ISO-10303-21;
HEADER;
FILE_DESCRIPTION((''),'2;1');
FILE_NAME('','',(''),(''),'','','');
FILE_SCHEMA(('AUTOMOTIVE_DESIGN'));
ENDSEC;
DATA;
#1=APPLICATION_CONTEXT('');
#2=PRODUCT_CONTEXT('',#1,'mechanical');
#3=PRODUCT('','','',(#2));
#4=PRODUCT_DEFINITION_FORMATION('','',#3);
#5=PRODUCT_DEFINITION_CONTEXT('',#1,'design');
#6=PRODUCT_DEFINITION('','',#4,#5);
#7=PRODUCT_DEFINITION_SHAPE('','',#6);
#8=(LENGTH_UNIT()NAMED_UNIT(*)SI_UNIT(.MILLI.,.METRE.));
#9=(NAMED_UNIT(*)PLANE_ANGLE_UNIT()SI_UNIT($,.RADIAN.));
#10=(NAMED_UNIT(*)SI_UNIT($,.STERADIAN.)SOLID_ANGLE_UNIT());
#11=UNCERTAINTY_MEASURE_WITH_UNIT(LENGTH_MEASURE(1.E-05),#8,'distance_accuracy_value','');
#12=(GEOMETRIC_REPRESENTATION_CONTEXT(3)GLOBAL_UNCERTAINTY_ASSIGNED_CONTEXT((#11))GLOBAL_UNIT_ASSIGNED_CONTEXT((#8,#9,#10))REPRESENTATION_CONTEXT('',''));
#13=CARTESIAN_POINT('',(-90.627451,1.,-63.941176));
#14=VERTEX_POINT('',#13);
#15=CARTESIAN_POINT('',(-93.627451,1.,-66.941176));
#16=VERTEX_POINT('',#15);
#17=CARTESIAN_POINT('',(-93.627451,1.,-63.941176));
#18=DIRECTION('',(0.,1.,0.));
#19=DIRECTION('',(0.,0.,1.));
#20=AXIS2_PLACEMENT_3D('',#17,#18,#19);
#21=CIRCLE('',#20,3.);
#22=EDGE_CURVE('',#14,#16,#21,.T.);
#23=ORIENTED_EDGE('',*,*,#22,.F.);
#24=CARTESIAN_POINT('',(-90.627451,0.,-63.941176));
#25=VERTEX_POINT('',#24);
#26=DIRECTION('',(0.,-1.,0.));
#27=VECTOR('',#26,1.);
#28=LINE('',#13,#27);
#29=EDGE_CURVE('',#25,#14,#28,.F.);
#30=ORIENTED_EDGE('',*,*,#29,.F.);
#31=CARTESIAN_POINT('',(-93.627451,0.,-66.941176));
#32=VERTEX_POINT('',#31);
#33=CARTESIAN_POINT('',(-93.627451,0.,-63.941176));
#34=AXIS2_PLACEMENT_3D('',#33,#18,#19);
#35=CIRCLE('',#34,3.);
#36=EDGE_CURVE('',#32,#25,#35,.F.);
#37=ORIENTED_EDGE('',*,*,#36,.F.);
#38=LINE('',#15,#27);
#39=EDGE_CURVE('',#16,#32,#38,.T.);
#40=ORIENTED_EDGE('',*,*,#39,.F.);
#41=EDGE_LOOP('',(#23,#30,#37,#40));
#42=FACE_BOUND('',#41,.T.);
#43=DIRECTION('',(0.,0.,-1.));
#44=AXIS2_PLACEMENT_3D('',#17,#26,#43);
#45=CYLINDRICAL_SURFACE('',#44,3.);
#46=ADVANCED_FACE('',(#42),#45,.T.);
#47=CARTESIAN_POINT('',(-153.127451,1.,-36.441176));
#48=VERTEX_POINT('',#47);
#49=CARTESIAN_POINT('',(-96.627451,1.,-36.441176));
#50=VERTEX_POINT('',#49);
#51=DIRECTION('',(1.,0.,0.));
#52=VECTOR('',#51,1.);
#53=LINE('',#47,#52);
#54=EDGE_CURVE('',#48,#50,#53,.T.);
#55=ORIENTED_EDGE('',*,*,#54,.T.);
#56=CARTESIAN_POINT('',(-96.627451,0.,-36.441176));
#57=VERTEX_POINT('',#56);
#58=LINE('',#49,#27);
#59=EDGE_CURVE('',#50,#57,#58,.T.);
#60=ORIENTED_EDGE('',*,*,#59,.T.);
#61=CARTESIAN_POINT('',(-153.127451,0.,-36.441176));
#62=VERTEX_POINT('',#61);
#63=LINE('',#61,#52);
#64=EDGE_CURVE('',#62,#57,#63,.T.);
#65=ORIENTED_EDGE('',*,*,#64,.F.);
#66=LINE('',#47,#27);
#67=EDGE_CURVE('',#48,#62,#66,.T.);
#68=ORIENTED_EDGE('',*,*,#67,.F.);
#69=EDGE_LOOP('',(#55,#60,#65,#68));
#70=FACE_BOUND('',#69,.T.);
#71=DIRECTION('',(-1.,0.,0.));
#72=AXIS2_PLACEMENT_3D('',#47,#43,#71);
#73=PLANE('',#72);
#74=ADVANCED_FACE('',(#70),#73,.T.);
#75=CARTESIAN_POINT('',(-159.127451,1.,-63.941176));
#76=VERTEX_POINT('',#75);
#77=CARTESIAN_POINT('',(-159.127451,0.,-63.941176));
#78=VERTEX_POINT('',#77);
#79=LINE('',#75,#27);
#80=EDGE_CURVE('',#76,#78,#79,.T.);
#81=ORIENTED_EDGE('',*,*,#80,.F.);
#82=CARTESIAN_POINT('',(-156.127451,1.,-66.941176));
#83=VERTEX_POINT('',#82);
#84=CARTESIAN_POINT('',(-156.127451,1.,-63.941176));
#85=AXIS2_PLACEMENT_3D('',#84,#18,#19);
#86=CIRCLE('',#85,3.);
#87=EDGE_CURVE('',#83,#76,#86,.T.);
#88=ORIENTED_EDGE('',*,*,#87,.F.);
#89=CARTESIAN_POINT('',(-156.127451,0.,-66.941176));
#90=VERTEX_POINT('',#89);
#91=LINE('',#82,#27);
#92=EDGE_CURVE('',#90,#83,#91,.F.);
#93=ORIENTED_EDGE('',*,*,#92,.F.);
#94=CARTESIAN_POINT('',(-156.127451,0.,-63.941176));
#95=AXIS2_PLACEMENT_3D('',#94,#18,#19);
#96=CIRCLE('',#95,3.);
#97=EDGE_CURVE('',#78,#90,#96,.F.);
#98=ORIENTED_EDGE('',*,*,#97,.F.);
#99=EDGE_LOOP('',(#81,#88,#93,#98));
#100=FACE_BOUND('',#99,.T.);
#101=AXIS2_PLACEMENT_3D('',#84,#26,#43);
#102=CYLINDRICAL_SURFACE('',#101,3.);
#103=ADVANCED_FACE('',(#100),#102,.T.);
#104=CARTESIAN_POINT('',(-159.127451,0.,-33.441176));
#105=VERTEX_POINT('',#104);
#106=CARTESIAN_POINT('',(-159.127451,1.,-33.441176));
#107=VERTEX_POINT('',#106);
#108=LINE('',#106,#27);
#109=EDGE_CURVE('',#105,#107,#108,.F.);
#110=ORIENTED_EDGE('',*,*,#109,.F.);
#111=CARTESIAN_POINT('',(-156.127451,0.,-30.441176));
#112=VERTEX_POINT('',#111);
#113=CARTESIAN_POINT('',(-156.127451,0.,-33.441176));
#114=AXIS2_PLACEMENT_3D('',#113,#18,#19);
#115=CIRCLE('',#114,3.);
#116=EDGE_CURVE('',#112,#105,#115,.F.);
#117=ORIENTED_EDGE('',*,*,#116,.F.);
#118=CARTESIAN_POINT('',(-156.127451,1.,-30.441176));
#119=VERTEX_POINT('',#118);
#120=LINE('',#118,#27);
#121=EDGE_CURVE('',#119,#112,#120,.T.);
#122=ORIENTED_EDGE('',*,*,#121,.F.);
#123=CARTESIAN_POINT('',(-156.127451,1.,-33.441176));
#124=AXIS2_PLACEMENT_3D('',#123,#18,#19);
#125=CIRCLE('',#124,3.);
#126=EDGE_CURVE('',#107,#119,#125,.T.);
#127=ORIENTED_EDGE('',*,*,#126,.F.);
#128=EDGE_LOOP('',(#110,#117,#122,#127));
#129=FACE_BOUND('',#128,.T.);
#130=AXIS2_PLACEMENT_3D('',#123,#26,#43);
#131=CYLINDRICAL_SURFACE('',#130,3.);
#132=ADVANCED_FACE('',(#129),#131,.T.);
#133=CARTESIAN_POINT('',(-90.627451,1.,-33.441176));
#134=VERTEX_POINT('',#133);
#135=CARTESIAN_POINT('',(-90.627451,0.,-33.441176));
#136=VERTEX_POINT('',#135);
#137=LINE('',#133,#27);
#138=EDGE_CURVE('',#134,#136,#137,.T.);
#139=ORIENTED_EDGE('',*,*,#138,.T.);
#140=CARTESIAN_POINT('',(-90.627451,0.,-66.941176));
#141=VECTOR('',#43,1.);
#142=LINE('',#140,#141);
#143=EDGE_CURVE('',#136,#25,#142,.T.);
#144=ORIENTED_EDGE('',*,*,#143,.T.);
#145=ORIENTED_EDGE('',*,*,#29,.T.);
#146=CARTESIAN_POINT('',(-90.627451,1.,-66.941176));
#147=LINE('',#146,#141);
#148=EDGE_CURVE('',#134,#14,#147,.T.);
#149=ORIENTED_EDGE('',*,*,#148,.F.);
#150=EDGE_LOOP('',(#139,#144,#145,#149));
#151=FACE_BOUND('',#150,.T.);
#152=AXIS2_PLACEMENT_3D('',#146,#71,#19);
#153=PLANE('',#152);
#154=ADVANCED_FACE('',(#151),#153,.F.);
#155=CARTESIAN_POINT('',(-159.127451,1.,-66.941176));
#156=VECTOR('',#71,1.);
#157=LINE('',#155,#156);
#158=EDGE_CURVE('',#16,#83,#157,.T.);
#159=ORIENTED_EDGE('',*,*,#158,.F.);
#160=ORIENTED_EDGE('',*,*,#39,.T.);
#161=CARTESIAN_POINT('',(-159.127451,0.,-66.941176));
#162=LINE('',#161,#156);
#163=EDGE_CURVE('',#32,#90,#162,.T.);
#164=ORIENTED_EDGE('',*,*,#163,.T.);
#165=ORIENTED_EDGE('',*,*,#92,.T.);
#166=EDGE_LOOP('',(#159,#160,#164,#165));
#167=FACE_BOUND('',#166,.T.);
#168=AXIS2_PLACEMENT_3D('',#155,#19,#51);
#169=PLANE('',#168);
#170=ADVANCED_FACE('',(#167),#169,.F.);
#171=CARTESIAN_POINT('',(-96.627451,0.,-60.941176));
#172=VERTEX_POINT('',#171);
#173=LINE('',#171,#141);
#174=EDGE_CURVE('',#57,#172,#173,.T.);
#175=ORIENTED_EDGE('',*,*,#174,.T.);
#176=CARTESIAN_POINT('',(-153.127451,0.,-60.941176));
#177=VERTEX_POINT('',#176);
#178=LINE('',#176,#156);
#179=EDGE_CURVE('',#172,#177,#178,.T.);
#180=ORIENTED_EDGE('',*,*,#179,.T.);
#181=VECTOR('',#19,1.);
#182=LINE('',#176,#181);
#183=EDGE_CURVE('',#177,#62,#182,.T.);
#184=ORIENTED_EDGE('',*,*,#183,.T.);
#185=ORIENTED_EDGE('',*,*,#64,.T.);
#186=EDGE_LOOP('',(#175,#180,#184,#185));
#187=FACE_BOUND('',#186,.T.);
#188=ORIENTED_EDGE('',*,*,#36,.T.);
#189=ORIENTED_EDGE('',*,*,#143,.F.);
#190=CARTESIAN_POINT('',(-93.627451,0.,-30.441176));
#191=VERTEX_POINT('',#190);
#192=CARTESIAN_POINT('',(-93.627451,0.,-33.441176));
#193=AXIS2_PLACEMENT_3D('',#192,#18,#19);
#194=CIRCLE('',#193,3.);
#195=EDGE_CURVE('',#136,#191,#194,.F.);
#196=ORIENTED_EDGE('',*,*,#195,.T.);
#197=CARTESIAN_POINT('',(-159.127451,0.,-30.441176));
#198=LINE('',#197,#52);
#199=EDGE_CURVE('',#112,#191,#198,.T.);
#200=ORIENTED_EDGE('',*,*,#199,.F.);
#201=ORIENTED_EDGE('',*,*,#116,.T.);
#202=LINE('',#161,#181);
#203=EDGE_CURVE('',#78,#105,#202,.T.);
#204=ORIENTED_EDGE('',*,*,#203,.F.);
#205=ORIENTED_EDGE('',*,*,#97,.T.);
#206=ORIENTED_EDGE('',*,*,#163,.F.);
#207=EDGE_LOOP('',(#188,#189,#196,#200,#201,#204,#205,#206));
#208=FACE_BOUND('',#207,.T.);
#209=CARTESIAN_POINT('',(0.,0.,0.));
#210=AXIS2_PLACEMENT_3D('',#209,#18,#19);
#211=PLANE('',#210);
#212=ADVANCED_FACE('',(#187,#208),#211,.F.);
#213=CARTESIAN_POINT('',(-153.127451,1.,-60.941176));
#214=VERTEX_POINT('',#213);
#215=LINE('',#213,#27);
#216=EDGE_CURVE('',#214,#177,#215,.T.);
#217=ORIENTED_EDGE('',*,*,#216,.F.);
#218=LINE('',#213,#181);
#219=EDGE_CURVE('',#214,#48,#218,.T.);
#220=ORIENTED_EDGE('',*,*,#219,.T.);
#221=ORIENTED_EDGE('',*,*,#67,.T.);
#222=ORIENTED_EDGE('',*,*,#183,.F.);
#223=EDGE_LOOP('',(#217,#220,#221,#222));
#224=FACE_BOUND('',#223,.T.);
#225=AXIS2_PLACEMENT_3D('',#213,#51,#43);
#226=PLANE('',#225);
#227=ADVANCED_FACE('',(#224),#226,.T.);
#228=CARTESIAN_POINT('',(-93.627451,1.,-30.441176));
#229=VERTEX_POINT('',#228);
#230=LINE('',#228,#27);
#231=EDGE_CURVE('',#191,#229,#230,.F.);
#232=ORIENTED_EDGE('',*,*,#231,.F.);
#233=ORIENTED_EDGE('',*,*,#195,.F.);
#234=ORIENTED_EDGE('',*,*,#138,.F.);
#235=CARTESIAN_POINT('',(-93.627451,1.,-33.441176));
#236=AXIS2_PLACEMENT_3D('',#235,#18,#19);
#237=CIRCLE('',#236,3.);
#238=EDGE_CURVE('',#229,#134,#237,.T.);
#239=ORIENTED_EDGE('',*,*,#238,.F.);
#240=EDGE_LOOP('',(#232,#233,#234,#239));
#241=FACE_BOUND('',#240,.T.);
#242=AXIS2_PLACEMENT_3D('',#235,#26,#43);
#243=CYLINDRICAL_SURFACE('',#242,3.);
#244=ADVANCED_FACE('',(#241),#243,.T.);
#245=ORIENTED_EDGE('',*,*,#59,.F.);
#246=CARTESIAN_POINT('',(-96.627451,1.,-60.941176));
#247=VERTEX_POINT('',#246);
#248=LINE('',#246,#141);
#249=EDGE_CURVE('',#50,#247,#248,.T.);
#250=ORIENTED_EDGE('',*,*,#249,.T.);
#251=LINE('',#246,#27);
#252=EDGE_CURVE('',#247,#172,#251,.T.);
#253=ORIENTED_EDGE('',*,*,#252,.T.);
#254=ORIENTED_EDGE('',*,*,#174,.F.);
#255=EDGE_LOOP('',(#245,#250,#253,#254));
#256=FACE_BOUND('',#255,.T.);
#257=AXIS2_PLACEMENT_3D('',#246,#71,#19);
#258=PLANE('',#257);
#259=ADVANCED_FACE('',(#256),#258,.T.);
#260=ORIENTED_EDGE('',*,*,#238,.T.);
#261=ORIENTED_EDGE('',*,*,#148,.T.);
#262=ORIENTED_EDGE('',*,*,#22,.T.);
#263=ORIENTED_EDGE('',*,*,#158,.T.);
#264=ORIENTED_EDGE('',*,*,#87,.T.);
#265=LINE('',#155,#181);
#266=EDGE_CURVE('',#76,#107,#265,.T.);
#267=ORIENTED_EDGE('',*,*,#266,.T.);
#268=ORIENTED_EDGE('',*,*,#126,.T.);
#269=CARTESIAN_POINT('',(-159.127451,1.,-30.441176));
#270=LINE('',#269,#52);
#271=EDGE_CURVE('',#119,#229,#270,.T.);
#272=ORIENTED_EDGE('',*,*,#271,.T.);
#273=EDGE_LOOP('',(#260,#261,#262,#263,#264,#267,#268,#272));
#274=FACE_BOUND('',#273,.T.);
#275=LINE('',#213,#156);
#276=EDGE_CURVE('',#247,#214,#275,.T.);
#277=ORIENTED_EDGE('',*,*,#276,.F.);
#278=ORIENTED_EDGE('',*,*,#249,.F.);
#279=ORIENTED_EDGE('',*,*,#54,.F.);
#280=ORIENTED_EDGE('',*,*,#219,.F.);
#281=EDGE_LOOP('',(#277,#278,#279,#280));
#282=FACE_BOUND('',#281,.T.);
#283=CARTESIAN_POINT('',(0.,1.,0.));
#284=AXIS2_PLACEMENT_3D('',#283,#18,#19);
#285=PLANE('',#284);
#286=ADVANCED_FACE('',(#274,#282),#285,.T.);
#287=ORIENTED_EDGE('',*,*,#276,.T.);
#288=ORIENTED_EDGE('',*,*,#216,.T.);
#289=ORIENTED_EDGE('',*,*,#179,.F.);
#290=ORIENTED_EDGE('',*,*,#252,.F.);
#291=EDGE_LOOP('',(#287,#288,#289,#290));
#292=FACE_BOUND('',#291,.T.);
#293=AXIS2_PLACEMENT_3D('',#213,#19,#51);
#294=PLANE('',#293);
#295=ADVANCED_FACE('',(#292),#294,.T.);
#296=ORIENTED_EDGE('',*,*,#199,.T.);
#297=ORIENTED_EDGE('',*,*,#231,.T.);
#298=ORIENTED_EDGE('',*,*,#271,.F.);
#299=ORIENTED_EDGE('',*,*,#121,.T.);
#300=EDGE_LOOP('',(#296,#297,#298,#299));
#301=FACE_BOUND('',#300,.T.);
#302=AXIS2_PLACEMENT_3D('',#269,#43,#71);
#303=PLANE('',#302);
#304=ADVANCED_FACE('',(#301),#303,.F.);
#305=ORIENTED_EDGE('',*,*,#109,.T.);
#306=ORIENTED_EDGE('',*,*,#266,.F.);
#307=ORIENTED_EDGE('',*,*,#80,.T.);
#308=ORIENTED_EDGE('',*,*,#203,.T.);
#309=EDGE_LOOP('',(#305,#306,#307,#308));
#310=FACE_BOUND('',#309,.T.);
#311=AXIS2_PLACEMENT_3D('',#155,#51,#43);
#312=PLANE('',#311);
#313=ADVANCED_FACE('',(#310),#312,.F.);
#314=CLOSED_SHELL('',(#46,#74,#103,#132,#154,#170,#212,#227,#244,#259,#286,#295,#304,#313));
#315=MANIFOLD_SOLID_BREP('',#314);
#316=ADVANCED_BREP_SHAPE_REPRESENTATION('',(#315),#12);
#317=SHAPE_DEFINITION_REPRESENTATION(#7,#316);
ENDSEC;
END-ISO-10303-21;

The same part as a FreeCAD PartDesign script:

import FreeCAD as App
import Part
import Sketcher

V = App.Vector
Q = App.Units.Quantity


def edges_at(feature, points):
    """Names of the edges that pass closest to the given points."""
    edges = feature.Shape.Edges
    near = lambda p: min(range(len(edges)), key=lambda i: edges[i].distToShape(Part.Vertex(*p))[0])
    return sorted({f"Edge{near(p) + 1}" for p in points})


def add_polygon(sketch, points):
    """Adds a closed chain of lines whose ends are joined by coincident constraints."""
    first, n = sketch.GeometryCount, len(points)
    for a, b in zip(points, points[1:] + points[:1]):
        sketch.addGeometry(Part.LineSegment(App.Vector(*a, 0), App.Vector(*b, 0)), False)
    for i in range(n):
        sketch.addConstraint(Sketcher.Constraint("Coincident", first + i, 2, first + (i + 1) % n, 1))

doc = App.newDocument("Part")
params = doc.addObject("Spreadsheet::Sheet", "Params")
for row, (alias, value) in enumerate([
    ("sketch1_width", "68.5 mm"),
    ("sketch1_width2", "56.5 mm"),
    ("sketch1_height", "36.5 mm"),
    ("sketch1_height2", "24.5 mm"),
    ("pad1_length", "1 mm"),
    ("fillet_radius", "3 mm"),
], start=1):
    params.set(f"A{row}", alias)
    params.set(f"B{row}", "=" + value)
    params.setAlias(f"B{row}", alias)

body = doc.addObject("PartDesign::Body", "Body")

# Sketch on XZ plane
sketch1 = body.newObject("Sketcher::SketchObject", "Sketch")
sketch1.AttachmentSupport = (doc.getObject("XZ_Plane"), [""])
sketch1.MapMode = "FlatFace"
add_polygon(sketch1, [(-159, -67), (-159, -30), (-91, -30), (-91, -67)])  # lines 0-3
add_polygon(sketch1, [(-97, -36), (-153, -36), (-153, -61), (-97, -61)])  # lines 4-7
sketch1.addConstraint([
    Sketcher.Constraint("Vertical", 0),
    Sketcher.Constraint("Horizontal", 1),
    Sketcher.Constraint("Vertical", 2),
    Sketcher.Constraint("Horizontal", 3),
    Sketcher.Constraint("Horizontal", 4),
    Sketcher.Constraint("Vertical", 5),
    Sketcher.Constraint("Horizontal", 6),
    Sketcher.Constraint("Vertical", 7),
    Sketcher.Constraint("DistanceX", 1, 1, 1, 2, Q("68.5 mm")),
    Sketcher.Constraint("DistanceX", 4, 2, 4, 1, Q("56.5 mm")),
    Sketcher.Constraint("DistanceY", 0, 1, 0, 2, Q("36.5 mm")),
    Sketcher.Constraint("DistanceY", 5, 2, 5, 1, Q("24.5 mm")),
    Sketcher.Constraint("DistanceX", 0, 2, 4, 2, Q("6 mm")),
    Sketcher.Constraint("DistanceY", 4, 2, 0, 2, Q("6 mm")),
    Sketcher.Constraint("DistanceX", 0, 2, -1, 1, Q("159.127451 mm")),
    Sketcher.Constraint("DistanceY", 0, 2, -1, 1, Q("30.441176 mm")),
])
sketch1.setExpression("Constraints[16]", "Params.sketch1_width")
sketch1.setExpression("Constraints[17]", "Params.sketch1_width2")
sketch1.setExpression("Constraints[18]", "Params.sketch1_height")
sketch1.setExpression("Constraints[19]", "Params.sketch1_height2")
pad1 = body.newObject("PartDesign::Pad", "Pad")
pad1.Profile = sketch1
pad1.setExpression("Length", "Params.pad1_length")
pad1.Reversed = True
doc.recompute()

fillet = body.newObject("PartDesign::Fillet", "Fillet")
fillet.Base = (pad1, edges_at(pad1, [
    (-159.127, 0.5, -66.941),
    (-90.627, 0.5, -66.941),
    (-90.627, 0.5, -30.441),
    (-159.127, 0.5, -30.441),
]))
fillet.setExpression("Radius", "Params.fillet_radius")

doc.recompute()
